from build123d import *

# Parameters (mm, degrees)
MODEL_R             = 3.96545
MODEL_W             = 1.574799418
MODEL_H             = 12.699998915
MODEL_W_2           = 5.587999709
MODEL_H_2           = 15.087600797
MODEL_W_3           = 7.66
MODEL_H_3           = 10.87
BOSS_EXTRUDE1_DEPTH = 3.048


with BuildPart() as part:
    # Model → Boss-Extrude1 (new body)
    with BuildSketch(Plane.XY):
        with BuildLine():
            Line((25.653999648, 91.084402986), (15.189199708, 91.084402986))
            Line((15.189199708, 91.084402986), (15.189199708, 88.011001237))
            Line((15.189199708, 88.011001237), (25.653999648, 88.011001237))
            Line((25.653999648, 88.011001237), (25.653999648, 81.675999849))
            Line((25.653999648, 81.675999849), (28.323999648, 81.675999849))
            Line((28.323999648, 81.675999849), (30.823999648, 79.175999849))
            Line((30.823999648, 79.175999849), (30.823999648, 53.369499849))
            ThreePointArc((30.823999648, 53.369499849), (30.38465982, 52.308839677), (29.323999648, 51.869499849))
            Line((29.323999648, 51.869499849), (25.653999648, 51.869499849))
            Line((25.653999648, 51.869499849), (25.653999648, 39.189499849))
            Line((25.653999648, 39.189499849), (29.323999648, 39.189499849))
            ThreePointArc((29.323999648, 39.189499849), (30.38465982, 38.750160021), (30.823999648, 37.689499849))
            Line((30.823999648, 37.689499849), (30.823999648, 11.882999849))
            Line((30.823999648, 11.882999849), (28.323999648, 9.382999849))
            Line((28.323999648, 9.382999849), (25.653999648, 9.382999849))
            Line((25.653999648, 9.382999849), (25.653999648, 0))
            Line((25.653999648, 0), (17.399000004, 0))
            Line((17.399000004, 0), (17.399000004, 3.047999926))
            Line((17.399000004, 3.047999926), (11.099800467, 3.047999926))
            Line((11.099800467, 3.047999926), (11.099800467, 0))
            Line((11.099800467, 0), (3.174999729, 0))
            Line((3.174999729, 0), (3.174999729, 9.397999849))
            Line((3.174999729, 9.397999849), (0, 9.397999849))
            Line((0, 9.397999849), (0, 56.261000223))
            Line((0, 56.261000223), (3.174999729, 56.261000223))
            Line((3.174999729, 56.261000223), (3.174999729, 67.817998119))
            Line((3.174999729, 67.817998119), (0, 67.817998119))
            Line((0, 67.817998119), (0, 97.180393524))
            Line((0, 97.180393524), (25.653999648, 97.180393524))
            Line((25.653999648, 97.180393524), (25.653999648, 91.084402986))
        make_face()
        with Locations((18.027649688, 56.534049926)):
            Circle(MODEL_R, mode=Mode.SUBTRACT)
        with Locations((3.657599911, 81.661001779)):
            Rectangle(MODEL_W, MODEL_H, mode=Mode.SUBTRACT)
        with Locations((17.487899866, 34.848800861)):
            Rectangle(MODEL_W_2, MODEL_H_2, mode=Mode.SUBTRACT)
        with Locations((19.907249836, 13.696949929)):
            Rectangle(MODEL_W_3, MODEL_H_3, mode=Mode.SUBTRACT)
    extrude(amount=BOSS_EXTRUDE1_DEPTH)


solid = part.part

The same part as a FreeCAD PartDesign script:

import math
import FreeCAD as App
import Part
import Sketcher

V = App.Vector
Q = App.Units.Quantity

doc = App.newDocument("Part")
body = doc.addObject("PartDesign::Body", "Body")

# Sketch on XY plane
sketch1 = body.newObject("Sketcher::SketchObject", "Sketch")
sketch1.AttachmentSupport = (doc.getObject("XY_Plane"), [""])
sketch1.MapMode = "FlatFace"
sketch1.addGeometry(Part.LineSegment(V(15.2, 91.1, 0), V(25.7, 91.1, 0)), False)
sketch1.addGeometry(Part.LineSegment(V(25.7, 91.1, 0), V(25.7, 97.2, 0)), False)
sketch1.addGeometry(Part.LineSegment(V(25.7, 97.2, 0), V(0, 97.2, 0)), False)
sketch1.addGeometry(Part.LineSegment(V(0, 97.2, 0), V(0, 67.8, 0)), False)
sketch1.addGeometry(Part.LineSegment(V(0, 67.8, 0), V(3.2, 67.8, 0)), False)
sketch1.addGeometry(Part.LineSegment(V(3.2, 67.8, 0), V(3.2, 56.3, 0)), False)
sketch1.addGeometry(Part.LineSegment(V(3.2, 56.3, 0), V(0, 56.3, 0)), False)
sketch1.addGeometry(Part.LineSegment(V(0, 56.3, 0), V(0, 9.4, 0)), False)
sketch1.addGeometry(Part.LineSegment(V(0, 9.4, 0), V(3.2, 9.4, 0)), False)
sketch1.addGeometry(Part.LineSegment(V(3.2, 9.4, 0), V(3.2, 0, 0)), False)
sketch1.addGeometry(Part.LineSegment(V(3.2, 0, 0), V(11.1, 0, 0)), False)
sketch1.addGeometry(Part.LineSegment(V(11.1, 0, 0), V(11.1, 3, 0)), False)
sketch1.addGeometry(Part.LineSegment(V(11.1, 3, 0), V(17.4, 3, 0)), False)
sketch1.addGeometry(Part.LineSegment(V(17.4, 3, 0), V(17.4, 0, 0)), False)
sketch1.addGeometry(Part.LineSegment(V(17.4, 0, 0), V(25.7, 0, 0)), False)
sketch1.addGeometry(Part.LineSegment(V(25.7, 0, 0), V(25.7, 9.4, 0)), False)
sketch1.addGeometry(Part.LineSegment(V(25.7, 9.4, 0), V(28.3, 9.4, 0)), False)
sketch1.addGeometry(Part.LineSegment(V(28.3, 9.4, 0), V(30.8, 11.9, 0)), False)
sketch1.addGeometry(Part.LineSegment(V(30.8, 11.9, 0), V(30.8, 37.7, 0)), False)
sketch1.addGeometry(Part.ArcOfCircle(Part.Circle(V(29.3, 37.7, 0), V(0, 0, 1), 1.5), math.radians(0), math.radians(90)), False)
sketch1.addGeometry(Part.LineSegment(V(29.3, 39.2, 0), V(25.7, 39.2, 0)), False)
sketch1.addGeometry(Part.LineSegment(V(25.7, 39.2, 0), V(25.7, 51.9, 0)), False)
sketch1.addGeometry(Part.LineSegment(V(25.7, 51.9, 0), V(29.3, 51.9, 0)), False)
sketch1.addGeometry(Part.ArcOfCircle(Part.Circle(V(29.3, 53.4, 0), V(0, 0, 1), 1.5), math.radians(-90), math.radians(0)), False)
sketch1.addGeometry(Part.LineSegment(V(30.8, 53.4, 0), V(30.8, 79.2, 0)), False)
sketch1.addGeometry(Part.LineSegment(V(30.8, 79.2, 0), V(28.3, 81.7, 0)), False)
sketch1.addGeometry(Part.LineSegment(V(28.3, 81.7, 0), V(25.7, 81.7, 0)), False)
sketch1.addGeometry(Part.LineSegment(V(25.7, 81.7, 0), V(25.7, 88, 0)), False)
sketch1.addGeometry(Part.LineSegment(V(25.7, 88, 0), V(15.2, 88, 0)), False)
sketch1.addGeometry(Part.LineSegment(V(15.2, 88, 0), V(15.2, 91.1, 0)), False)
sketch1.addGeometry(Part.LineSegment(V(16.1, 8.3, 0), V(16.1, 19.1, 0)), False)
sketch1.addGeometry(Part.LineSegment(V(16.1, 19.1, 0), V(23.7, 19.1, 0)), False)
sketch1.addGeometry(Part.LineSegment(V(23.7, 19.1, 0), V(23.7, 8.3, 0)), False)
sketch1.addGeometry(Part.LineSegment(V(23.7, 8.3, 0), V(16.1, 8.3, 0)), False)
sketch1.addGeometry(Part.LineSegment(V(14.7, 27.3, 0), V(14.7, 42.4, 0)), False)
sketch1.addGeometry(Part.LineSegment(V(14.7, 42.4, 0), V(20.3, 42.4, 0)), False)
sketch1.addGeometry(Part.LineSegment(V(20.3, 42.4, 0), V(20.3, 27.3, 0)), False)
sketch1.addGeometry(Part.LineSegment(V(20.3, 27.3, 0), V(14.7, 27.3, 0)), False)
sketch1.addGeometry(Part.Circle(V(18, 56.5, 0), V(0, 0, 1), 4), False)
sketch1.addGeometry(Part.LineSegment(V(2.9, 75.3, 0), V(2.9, 88, 0)), False)
sketch1.addGeometry(Part.LineSegment(V(2.9, 88, 0), V(4.4, 88, 0)), False)
sketch1.addGeometry(Part.LineSegment(V(4.4, 88, 0), V(4.4, 75.3, 0)), False)
sketch1.addGeometry(Part.LineSegment(V(4.4, 75.3, 0), V(2.9, 75.3, 0)), False)
sketch1.addConstraint(Sketcher.Constraint("Coincident", 0, 2, 1, 1))
sketch1.addConstraint(Sketcher.Constraint("Coincident", 1, 2, 2, 1))
sketch1.addConstraint(Sketcher.Constraint("Coincident", 2, 2, 3, 1))
sketch1.addConstraint(Sketcher.Constraint("Coincident", 3, 2, 4, 1))
sketch1.addConstraint(Sketcher.Constraint("Coincident", 4, 2, 5, 1))
sketch1.addConstraint(Sketcher.Constraint("Coincident", 5, 2, 6, 1))
sketch1.addConstraint(Sketcher.Constraint("Coincident", 6, 2, 7, 1))
sketch1.addConstraint(Sketcher.Constraint("Coincident", 7, 2, 8, 1))
sketch1.addConstraint(Sketcher.Constraint("Coincident", 8, 2, 9, 1))
sketch1.addConstraint(Sketcher.Constraint("Coincident", 9, 2, 10, 1))
sketch1.addConstraint(Sketcher.Constraint("Coincident", 10, 2, 11, 1))
sketch1.addConstraint(Sketcher.Constraint("Coincident", 11, 2, 12, 1))
sketch1.addConstraint(Sketcher.Constraint("Coincident", 12, 2, 13, 1))
sketch1.addConstraint(Sketcher.Constraint("Coincident", 13, 2, 14, 1))
sketch1.addConstraint(Sketcher.Constraint("Coincident", 14, 2, 15, 1))
sketch1.addConstraint(Sketcher.Constraint("Coincident", 15, 2, 16, 1))
sketch1.addConstraint(Sketcher.Constraint("Coincident", 16, 2, 17, 1))
sketch1.addConstraint(Sketcher.Constraint("Coincident", 17, 2, 18, 1))
sketch1.addConstraint(Sketcher.Constraint("Tangent", 18, 2, 19, 1))
sketch1.addConstraint(Sketcher.Constraint("Tangent", 19, 2, 20, 1))
sketch1.addConstraint(Sketcher.Constraint("Coincident", 20, 2, 21, 1))
sketch1.addConstraint(Sketcher.Constraint("Coincident", 21, 2, 22, 1))
sketch1.addConstraint(Sketcher.Constraint("Tangent", 22, 2, 23, 1))
sketch1.addConstraint(Sketcher.Constraint("Tangent", 23, 2, 24, 1))
sketch1.addConstraint(Sketcher.Constraint("Coincident", 24, 2, 25, 1))
sketch1.addConstraint(Sketcher.Constraint("Coincident", 25, 2, 26, 1))
sketch1.addConstraint(Sketcher.Constraint("Coincident", 26, 2, 27, 1))
sketch1.addConstraint(Sketcher.Constraint("Coincident", 27, 2, 28, 1))
sketch1.addConstraint(Sketcher.Constraint("Coincident", 28, 2, 29, 1))
sketch1.addConstraint(Sketcher.Constraint("Coincident", 29, 2, 0, 1))
sketch1.addConstraint(Sketcher.Constraint("Coincident", 30, 2, 31, 1))
sketch1.addConstraint(Sketcher.Constraint("Coincident", 31, 2, 32, 1))
sketch1.addConstraint(Sketcher.Constraint("Coincident", 32, 2, 33, 1))
sketch1.addConstraint(Sketcher.Constraint("Coincident", 33, 2, 30, 1))
sketch1.addConstraint(Sketcher.Constraint("Coincident", 34, 2, 35, 1))
sketch1.addConstraint(Sketcher.Constraint("Coincident", 35, 2, 36, 1))
sketch1.addConstraint(Sketcher.Constraint("Coincident", 36, 2, 37, 1))
sketch1.addConstraint(Sketcher.Constraint("Coincident", 37, 2, 34, 1))
sketch1.addConstraint(Sketcher.Constraint("Coincident", 39, 2, 40, 1))
sketch1.addConstraint(Sketcher.Constraint("Coincident", 40, 2, 41, 1))
sketch1.addConstraint(Sketcher.Constraint("Coincident", 41, 2, 42, 1))
sketch1.addConstraint(Sketcher.Constraint("Coincident", 42, 2, 39, 1))
sketch1.addConstraint(Sketcher.Constraint("Horizontal", 0))
sketch1.addConstraint(Sketcher.Constraint("Vertical", 1))
sketch1.addConstraint(Sketcher.Constraint("Horizontal", 2))
sketch1.addConstraint(Sketcher.Constraint("Vertical", 3))
sketch1.addConstraint(Sketcher.Constraint("Horizontal", 4))
sketch1.addConstraint(Sketcher.Constraint("Vertical", 5))
sketch1.addConstraint(Sketcher.Constraint("Horizontal", 6))
sketch1.addConstraint(Sketcher.Constraint("Vertical", 7))
sketch1.addConstraint(Sketcher.Constraint("Horizontal", 8))
sketch1.addConstraint(Sketcher.Constraint("Vertical", 9))
sketch1.addConstraint(Sketcher.Constraint("Horizontal", 10))
sketch1.addConstraint(Sketcher.Constraint("Vertical", 11))
sketch1.addConstraint(Sketcher.Constraint("Horizontal", 12))
sketch1.addConstraint(Sketcher.Constraint("Vertical", 13))
sketch1.addConstraint(Sketcher.Constraint("Horizontal", 14))
sketch1.addConstraint(Sketcher.Constraint("Vertical", 15))
sketch1.addConstraint(Sketcher.Constraint("Horizontal", 16))
sketch1.addConstraint(Sketcher.Constraint("Vertical", 18))
sketch1.addConstraint(Sketcher.Constraint("Horizontal", 20))
sketch1.addConstraint(Sketcher.Constraint("Vertical", 21))
sketch1.addConstraint(Sketcher.Constraint("Horizontal", 22))
sketch1.addConstraint(Sketcher.Constraint("Vertical", 24))
sketch1.addConstraint(Sketcher.Constraint("Horizontal", 26))
sketch1.addConstraint(Sketcher.Constraint("Vertical", 27))
sketch1.addConstraint(Sketcher.Constraint("Horizontal", 28))
sketch1.addConstraint(Sketcher.Constraint("Vertical", 29))
sketch1.addConstraint(Sketcher.Constraint("Vertical", 30))
sketch1.addConstraint(Sketcher.Constraint("Horizontal", 31))
sketch1.addConstraint(Sketcher.Constraint("Vertical", 32))
sketch1.addConstraint(Sketcher.Constraint("Horizontal", 33))
sketch1.addConstraint(Sketcher.Constraint("Vertical", 34))
sketch1.addConstraint(Sketcher.Constraint("Horizontal", 35))
sketch1.addConstraint(Sketcher.Constraint("Vertical", 36))
sketch1.addConstraint(Sketcher.Constraint("Horizontal", 37))
sketch1.addConstraint(Sketcher.Constraint("Vertical", 39))
sketch1.addConstraint(Sketcher.Constraint("Horizontal", 40))
sketch1.addConstraint(Sketcher.Constraint("Vertical", 41))
sketch1.addConstraint(Sketcher.Constraint("Horizontal", 42))
sketch1.addConstraint(Sketcher.Constraint("Equal", 19, 23))
sketch1.addConstraint(Sketcher.Constraint("PointOnObject", 2, 2, -2))
sketch1.addConstraint(Sketcher.Constraint("PointOnObject", 6, 2, -2))
sketch1.addConstraint(Sketcher.Constraint("PointOnObject", 9, 2, -1))
sketch1.addConstraint(Sketcher.Constraint("PointOnObject", 13, 2, -1))
sketch1.addConstraint(Sketcher.Constraint("Perpendicular", 17, 25))
sketch1.addConstraint(Sketcher.Constraint("Horizontal", 28, 2, 39, 2))
sketch1.addConstraint(Sketcher.Constraint("Vertical", 19, 3, 23, 3))
sketch1.addConstraint(Sketcher.Constraint("Vertical", 5, 2, 8, 2))
sketch1.addConstraint(Sketcher.Constraint("Vertical", 1, 2, 14, 2))
sketch1.addConstraint(Sketcher.Constraint("Vertical", 15, 2, 20, 2))
sketch1.addConstraint(Sketcher.Constraint("Vertical", 16, 2, 25, 2))
sketch1.addConstraint(Sketcher.Constraint("Vertical", 21, 2, 26, 2))
sketch1.addConstraint(Sketcher.Constraint("Equal", 18, 24))
sketch1.addConstraint(Sketcher.Constraint("Equal", 17, 25))
sketch1.addConstraint(Sketcher.Constraint("DistanceY", 39, 1, 39, 2, Q("0.5 in")))
sketch1.addConstraint(Sketcher.Constraint("DistanceX", 2, 2, 2, 1, Q("1.01 in")))
sketch1.addConstraint(Sketcher.Constraint("DistanceX", 35, 1, 35, 2, Q("0.22 in")))
sketch1.addConstraint(Sketcher.Constraint("DistanceY", 9, 2, 9, 1, Q("0.37 in")))
sketch1.addConstraint(Sketcher.Constraint("DistanceY", 11, 1, 11, 2, Q("0.12 in")))
sketch1.addConstraint(Sketcher.Constraint("Diameter", 38, 7.9309))
sketch1.addConstraint(Sketcher.Constraint("DistanceX", 0, 1, 0, 2, Q("0.412 in")))
sketch1.addConstraint(Sketcher.Constraint("DistanceX", 4, 1, 4, 2, Q("0.125 in")))
sketch1.addConstraint(Sketcher.Constraint("DistanceX", 10, 1, 10, 2, Q("0.312 in")))
sketch1.addConstraint(Sketcher.Constraint("DistanceX", 12, 1, 12, 2, Q("0.248 in")))
sketch1.addConstraint(Sketcher.Constraint("DistanceX", 40, 1, 40, 2, Q("0.062 in")))
sketch1.addConstraint(Sketcher.Constraint("DistanceY", 3, 2, 3, 1, Q("1.1559998 in")))
sketch1.addConstraint(Sketcher.Constraint("DistanceY", 5, 2, 5, 1, Q("0.4549999 in")))
sketch1.addConstraint(Sketcher.Constraint("DistanceY", 7, 2, 7, 1, Q("1.845 in")))
sketch1.addConstraint(Sketcher.Constraint("DistanceY", 29, 1, 29, 2, Q("0.1210001 in")))
sketch1.addConstraint(Sketcher.Constraint("DistanceY", 34, 1, 34, 2, Q("0.594 in")))
sketch1.addConstraint(Sketcher.Constraint("Radius", 19, 1.5))
sketch1.addConstraint(Sketcher.Constraint("DistanceX", 4, 2, 40, 2, Q("0.05 in")))
sketch1.addConstraint(Sketcher.Constraint("DistanceY", -1, 1, 0, 2, Q("3.5860001 in")))
sketch1.addConstraint(Sketcher.Constraint("DistanceY", -1, 1, 34, 2, Q("1.669 in")))
sketch1.addConstraint(Sketcher.Constraint("DistanceX", 16, 1, 16, 2, 2.67))
sketch1.addConstraint(Sketcher.Constraint("DistanceX", 20, 2, 20, 1, 3.67))
sketch1.addConstraint(Sketcher.Constraint("DistanceX", 31, 1, 31, 2, 7.66))
sketch1.addConstraint(Sketcher.Constraint("DistanceY", 15, 1, 15, 2, 9.383))
sketch1.addConstraint(Sketcher.Constraint("DistanceY", 18, 1, 18, 2, 25.8065))
sketch1.addConstraint(Sketcher.Constraint("DistanceY", 21, 1, 21, 2, 12.68))
sketch1.addConstraint(Sketcher.Constraint("DistanceY", 30, 1, 30, 2, 10.87))
sketch1.addConstraint(Sketcher.Constraint("DistanceX", -1, 1, 34, 2, Q("0.5785 in")))
sketch1.addConstraint(Sketcher.Constraint("DistanceX", -1, 1, 38, 3, 18.02765))
sketch1.addConstraint(Sketcher.Constraint("DistanceY", -1, 1, 38, 3, 56.53405))
sketch1.addConstraint(Sketcher.Constraint("DistanceX", -1, 1, 30, 2, 16.07725))
sketch1.addConstraint(Sketcher.Constraint("DistanceY", -1, 1, 30, 2, 19.13195))
pad1 = body.newObject("PartDesign::Pad", "Pad")
pad1.Profile = sketch1
pad1.Length = Q("0.12 in")

doc.recompute()
